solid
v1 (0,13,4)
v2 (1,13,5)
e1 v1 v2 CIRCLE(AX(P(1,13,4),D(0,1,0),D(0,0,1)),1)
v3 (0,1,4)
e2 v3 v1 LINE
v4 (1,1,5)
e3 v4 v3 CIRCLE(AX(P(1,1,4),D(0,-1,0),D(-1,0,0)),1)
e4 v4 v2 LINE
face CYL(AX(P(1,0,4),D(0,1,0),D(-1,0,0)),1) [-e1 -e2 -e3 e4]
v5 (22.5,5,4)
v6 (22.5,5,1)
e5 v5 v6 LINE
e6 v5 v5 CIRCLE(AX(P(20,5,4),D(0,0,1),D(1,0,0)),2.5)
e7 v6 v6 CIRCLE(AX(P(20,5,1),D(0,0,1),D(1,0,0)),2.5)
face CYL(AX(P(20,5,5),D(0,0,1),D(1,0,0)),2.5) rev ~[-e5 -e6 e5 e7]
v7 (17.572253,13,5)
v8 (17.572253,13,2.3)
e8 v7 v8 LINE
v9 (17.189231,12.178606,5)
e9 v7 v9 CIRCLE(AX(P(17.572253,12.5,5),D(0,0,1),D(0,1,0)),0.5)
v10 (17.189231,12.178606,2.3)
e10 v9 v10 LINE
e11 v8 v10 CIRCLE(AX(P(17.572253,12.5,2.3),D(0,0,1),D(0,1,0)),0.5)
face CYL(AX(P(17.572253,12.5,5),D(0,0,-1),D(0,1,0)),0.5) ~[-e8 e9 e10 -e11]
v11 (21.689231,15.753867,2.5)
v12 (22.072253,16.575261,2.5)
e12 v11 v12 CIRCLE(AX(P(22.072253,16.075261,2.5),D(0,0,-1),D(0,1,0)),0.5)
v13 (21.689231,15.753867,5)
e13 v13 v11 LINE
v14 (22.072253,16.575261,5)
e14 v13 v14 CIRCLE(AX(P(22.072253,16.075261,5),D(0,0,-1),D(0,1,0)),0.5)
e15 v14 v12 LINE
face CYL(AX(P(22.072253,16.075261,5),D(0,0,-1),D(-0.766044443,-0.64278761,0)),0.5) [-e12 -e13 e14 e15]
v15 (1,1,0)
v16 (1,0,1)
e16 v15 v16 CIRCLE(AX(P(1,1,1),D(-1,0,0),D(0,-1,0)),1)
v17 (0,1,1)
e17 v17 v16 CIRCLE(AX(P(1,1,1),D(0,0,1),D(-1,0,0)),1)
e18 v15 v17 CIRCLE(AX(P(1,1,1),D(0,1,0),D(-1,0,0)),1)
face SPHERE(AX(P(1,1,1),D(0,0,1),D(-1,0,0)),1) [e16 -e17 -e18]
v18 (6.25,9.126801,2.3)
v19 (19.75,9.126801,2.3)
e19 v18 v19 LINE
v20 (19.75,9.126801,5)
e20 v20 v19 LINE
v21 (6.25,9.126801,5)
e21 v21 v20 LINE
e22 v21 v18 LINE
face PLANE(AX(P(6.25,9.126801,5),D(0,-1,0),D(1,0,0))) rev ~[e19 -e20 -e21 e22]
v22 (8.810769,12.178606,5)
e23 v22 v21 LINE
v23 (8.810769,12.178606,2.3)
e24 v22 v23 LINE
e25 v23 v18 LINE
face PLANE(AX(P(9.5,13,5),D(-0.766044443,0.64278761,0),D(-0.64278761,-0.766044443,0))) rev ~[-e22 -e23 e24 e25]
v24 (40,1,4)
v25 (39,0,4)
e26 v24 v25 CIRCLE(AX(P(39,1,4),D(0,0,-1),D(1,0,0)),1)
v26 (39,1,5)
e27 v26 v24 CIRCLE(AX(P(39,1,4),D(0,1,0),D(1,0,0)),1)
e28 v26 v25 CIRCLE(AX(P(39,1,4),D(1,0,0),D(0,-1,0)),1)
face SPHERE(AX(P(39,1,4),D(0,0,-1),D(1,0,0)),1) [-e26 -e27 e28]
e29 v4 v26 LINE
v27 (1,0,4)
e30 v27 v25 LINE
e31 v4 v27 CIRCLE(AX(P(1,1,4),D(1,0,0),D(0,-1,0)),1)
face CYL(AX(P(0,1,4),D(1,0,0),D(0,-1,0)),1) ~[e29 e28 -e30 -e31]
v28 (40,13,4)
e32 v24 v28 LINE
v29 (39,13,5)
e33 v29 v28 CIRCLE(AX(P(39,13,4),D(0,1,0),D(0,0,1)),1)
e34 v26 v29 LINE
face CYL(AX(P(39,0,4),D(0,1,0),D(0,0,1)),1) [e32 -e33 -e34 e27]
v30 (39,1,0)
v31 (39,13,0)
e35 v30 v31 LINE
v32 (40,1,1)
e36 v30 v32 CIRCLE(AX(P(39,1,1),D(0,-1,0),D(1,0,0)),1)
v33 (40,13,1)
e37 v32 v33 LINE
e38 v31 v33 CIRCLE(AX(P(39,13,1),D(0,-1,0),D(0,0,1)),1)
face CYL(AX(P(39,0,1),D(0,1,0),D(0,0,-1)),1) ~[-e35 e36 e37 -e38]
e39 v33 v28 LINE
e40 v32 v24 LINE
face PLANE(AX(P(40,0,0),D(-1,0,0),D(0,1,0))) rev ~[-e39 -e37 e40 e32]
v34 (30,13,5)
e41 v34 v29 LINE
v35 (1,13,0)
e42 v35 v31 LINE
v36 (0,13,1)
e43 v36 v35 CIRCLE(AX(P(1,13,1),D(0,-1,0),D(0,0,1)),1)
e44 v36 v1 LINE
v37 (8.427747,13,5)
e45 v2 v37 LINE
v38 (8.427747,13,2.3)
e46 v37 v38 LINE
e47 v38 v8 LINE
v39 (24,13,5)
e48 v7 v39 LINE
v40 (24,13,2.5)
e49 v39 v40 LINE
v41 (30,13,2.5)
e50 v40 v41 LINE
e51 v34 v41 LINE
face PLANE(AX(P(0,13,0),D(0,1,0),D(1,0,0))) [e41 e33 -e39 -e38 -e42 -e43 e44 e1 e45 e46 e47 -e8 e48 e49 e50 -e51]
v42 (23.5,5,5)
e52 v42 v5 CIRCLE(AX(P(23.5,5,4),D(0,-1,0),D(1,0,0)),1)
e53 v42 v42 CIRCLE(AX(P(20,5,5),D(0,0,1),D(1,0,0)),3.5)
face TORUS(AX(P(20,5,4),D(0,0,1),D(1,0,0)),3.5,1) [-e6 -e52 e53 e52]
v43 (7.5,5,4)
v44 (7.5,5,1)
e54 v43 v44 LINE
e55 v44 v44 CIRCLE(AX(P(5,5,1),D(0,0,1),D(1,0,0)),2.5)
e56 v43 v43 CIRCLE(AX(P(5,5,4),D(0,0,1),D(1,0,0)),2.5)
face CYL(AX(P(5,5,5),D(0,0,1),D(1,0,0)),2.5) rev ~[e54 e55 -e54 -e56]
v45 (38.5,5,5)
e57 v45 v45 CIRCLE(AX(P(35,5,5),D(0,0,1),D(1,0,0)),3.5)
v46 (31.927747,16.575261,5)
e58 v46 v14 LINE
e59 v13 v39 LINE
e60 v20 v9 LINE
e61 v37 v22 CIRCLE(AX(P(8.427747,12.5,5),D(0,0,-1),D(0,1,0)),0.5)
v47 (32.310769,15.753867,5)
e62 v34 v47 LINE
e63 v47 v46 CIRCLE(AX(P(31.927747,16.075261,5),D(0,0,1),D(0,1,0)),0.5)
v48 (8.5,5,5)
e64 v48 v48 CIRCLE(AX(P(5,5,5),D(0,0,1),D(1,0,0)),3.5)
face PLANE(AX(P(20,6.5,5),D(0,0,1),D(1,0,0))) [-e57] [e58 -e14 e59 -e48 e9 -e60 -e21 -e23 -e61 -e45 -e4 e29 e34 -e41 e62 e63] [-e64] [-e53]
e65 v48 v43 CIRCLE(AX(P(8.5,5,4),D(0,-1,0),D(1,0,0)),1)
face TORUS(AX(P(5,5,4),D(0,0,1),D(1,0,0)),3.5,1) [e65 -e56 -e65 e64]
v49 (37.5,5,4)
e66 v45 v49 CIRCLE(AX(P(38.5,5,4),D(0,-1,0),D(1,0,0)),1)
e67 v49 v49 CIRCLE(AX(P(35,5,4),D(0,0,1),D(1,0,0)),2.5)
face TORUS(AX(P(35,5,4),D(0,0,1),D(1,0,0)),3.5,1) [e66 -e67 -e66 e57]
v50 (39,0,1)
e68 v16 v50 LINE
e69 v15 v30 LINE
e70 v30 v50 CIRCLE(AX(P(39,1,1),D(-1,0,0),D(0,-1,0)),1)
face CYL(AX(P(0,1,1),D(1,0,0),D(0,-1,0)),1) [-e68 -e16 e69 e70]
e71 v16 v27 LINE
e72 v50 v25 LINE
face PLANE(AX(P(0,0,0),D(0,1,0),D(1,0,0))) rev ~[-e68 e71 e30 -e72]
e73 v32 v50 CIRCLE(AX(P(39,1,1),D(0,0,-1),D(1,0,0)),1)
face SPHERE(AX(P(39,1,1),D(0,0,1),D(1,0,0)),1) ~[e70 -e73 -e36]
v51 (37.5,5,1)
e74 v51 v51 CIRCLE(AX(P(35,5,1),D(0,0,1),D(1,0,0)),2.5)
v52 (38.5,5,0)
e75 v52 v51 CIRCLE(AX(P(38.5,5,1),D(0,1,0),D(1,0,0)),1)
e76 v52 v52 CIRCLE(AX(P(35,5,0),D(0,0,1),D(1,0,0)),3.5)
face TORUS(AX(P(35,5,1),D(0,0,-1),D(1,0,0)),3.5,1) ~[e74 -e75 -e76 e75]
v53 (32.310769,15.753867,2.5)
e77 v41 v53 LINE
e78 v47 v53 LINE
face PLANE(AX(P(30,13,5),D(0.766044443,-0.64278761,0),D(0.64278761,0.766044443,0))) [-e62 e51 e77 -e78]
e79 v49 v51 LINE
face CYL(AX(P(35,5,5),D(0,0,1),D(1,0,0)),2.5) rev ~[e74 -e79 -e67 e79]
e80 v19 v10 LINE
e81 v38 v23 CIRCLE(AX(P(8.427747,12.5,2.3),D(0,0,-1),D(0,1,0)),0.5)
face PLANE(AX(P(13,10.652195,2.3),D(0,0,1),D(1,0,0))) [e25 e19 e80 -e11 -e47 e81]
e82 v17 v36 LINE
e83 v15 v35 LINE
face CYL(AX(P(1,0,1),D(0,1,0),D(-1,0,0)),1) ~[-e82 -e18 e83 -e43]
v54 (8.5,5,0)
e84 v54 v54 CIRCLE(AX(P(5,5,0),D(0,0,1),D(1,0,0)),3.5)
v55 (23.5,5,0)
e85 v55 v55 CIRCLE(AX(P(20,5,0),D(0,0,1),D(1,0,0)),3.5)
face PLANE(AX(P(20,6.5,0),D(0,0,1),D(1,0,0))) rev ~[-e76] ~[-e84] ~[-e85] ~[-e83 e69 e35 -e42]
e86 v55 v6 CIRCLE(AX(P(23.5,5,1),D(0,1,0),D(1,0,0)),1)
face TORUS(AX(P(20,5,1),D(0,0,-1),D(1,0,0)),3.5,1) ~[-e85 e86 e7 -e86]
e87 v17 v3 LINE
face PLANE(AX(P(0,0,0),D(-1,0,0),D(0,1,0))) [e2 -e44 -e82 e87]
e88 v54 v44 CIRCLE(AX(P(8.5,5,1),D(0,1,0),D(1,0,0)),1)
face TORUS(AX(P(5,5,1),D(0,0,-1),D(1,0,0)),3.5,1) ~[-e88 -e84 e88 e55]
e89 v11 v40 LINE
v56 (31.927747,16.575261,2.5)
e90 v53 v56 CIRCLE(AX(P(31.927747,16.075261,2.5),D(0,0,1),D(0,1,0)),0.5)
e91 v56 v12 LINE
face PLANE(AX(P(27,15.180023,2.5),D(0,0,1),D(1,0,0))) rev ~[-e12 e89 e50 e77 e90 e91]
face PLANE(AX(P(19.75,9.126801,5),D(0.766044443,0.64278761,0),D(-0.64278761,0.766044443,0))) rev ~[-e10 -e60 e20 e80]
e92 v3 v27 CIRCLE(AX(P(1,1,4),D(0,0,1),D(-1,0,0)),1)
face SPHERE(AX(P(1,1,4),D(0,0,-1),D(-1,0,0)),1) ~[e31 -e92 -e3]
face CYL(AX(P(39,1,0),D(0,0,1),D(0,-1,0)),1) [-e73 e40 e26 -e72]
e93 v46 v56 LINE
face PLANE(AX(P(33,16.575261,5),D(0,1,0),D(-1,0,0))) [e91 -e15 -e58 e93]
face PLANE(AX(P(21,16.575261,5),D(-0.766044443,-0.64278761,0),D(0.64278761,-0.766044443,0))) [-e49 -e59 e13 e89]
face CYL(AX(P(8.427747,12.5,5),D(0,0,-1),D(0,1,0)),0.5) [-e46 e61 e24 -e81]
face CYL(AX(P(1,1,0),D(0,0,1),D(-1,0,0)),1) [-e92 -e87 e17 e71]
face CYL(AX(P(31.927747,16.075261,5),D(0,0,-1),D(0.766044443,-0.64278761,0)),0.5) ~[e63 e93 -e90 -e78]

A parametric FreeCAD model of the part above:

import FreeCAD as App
import Part
import Sketcher
Q = App.Units.Quantity


def edges_at(feature, points):
    """Names of the edges that pass closest to the given points."""
    edges = feature.Shape.Edges
    near = lambda p: min(range(len(edges)), key=lambda i: edges[i].distToShape(Part.Vertex(*p))[0])
    return sorted({f"Edge{near(p) + 1}" for p in points})

doc = App.newDocument("Part")
body = doc.addObject("PartDesign::Body", "Body")

# Sketch on XY plane
sketch1 = body.newObject("Sketcher::SketchObject", "Sketch")
sketch1.AttachmentSupport = (doc.getObject("XY_Plane"), [""])
sketch1.MapMode = "FlatFace"
sketch1.addGeometry([
    Part.LineSegment(App.Vector(0, 13, 0), App.Vector(0, 0, 0)),
    Part.LineSegment(App.Vector(0, 0, 0), App.Vector(40, 0, 0)),
    Part.LineSegment(App.Vector(40, 0, 0), App.Vector(40, 13, 0)),
    Part.LineSegment(App.Vector(40, 13, 0), App.Vector(0, 13, 0)),
], False)
sketch1.addConstraint([
    Sketcher.Constraint("Coincident", 0, 2, 1, 1),
    Sketcher.Constraint("Coincident", 1, 2, 2, 1),
    Sketcher.Constraint("Coincident", 2, 2, 3, 1),
    Sketcher.Constraint("Coincident", 3, 2, 0, 1),
    Sketcher.Constraint("Vertical", 0),
    Sketcher.Constraint("Horizontal", 1),
    Sketcher.Constraint("Vertical", 2),
    Sketcher.Constraint("Horizontal", 3),
    Sketcher.Constraint("Coincident", 0, 2, -1, 1),
    Sketcher.Constraint("DistanceX", 1, 1, 1, 2, Q("40 mm")),
    Sketcher.Constraint("DistanceY", 0, 2, 0, 1, Q("13 mm")),
])
pad1 = body.newObject("PartDesign::Pad", "Pad")
pad1.Profile = sketch1
pad1.Length = 5

# Sketch on XY plane
sketch2 = body.newObject("Sketcher::SketchObject", "Sketch001")
sketch2.AttachmentSupport = (doc.getObject("XY_Plane"), [""])
sketch2.MapMode = "FlatFace"
sketch2.AttachmentOffset = App.Placement(App.Vector(0, 0, 5), App.Rotation())
sketch2.addGeometry([
    Part.Circle(App.Vector(5, 5, 0), App.Vector(0, 0, 1), 2.5),
    Part.Circle(App.Vector(20, 5, 0), App.Vector(0, 0, 1), 2.5),
    Part.Circle(App.Vector(35, 5, 0), App.Vector(0, 0, 1), 2.5),
], False)
sketch2.addConstraint([
    Sketcher.Constraint("Equal", 0, 1),
    Sketcher.Constraint("Equal", 1, 2),
    Sketcher.Constraint("Horizontal", 0, 3, 1, 3),
    Sketcher.Constraint("Horizontal", 1, 3, 2, 3),
    Sketcher.Constraint("Diameter", 0, Q("5 mm")),
    Sketcher.Constraint("DistanceX", -1, 1, 0, 3, Q("5 mm")),
    Sketcher.Constraint("DistanceY", -1, 1, 0, 3, Q("5 mm")),
    Sketcher.Constraint("DistanceX", -1, 1, 1, 3, Q("20 mm")),
    Sketcher.Constraint("DistanceX", -1, 1, 2, 3, Q("35 mm")),
])
pocket1 = body.newObject("PartDesign::Pocket", "Pocket")
pocket1.Profile = sketch2
pocket1.Type = "ThroughAll"

# Sketch on XY plane
sketch3 = body.newObject("Sketcher::SketchObject", "Sketch002")
sketch3.AttachmentSupport = (doc.getObject("XY_Plane"), [""])
sketch3.MapMode = "FlatFace"
sketch3.AttachmentOffset = App.Placement(App.Vector(0, 0, 5), App.Rotation())
sketch3.addGeometry([
    Part.LineSegment(App.Vector(21, 16.575261, 0), App.Vector(24, 13, 0)),
    Part.LineSegment(App.Vector(24, 13, 0), App.Vector(30, 13, 0)),
    Part.LineSegment(App.Vector(30, 13, 0), App.Vector(33, 16.575261, 0)),
    Part.LineSegment(App.Vector(33, 16.575261, 0), App.Vector(21, 16.575261, 0)),
], False)
sketch3.addConstraint([
    Sketcher.Constraint("Coincident", 0, 2, 1, 1),
    Sketcher.Constraint("Coincident", 1, 2, 2, 1),
    Sketcher.Constraint("Coincident", 2, 2, 3, 1),
    Sketcher.Constraint("Coincident", 3, 2, 0, 1),
    Sketcher.Constraint("Horizontal", 1),
    Sketcher.Constraint("Horizontal", 3),
    Sketcher.Constraint("Equal", 0, 2),
    Sketcher.Constraint("DistanceX", 1, 1, 1, 2, Q("6 mm")),
    Sketcher.Constraint("DistanceX", 3, 2, 3, 1, Q("12 mm")),
    Sketcher.Constraint("Angle", 0, Q("-50 deg")),
    Sketcher.Constraint("DistanceX", -1, 1, 0, 2, Q("24 mm")),
    Sketcher.Constraint("DistanceY", -1, 1, 0, 2, Q("13 mm")),
])
pad2 = body.newObject("PartDesign::Pad", "Pad001")
pad2.Profile = sketch3
pad2.Length = 2.5
pad2.Reversed = True

# Sketch on XY plane
sketch4 = body.newObject("Sketcher::SketchObject", "Sketch003")
sketch4.AttachmentSupport = (doc.getObject("XY_Plane"), [""])
sketch4.MapMode = "FlatFace"
sketch4.AttachmentOffset = App.Placement(App.Vector(0, 0, 5), App.Rotation())
sketch4.addGeometry([
    Part.LineSegment(App.Vector(16.5, 13, 0), App.Vector(9.5, 13, 0)),
    Part.LineSegment(App.Vector(9.5, 13, 0), App.Vector(6.25, 9.126801, 0)),
    Part.LineSegment(App.Vector(6.25, 9.126801, 0), App.Vector(19.75, 9.126801, 0)),
    Part.LineSegment(App.Vector(19.75, 9.126801, 0), App.Vector(16.5, 13, 0)),
], False)
sketch4.addConstraint([
    Sketcher.Constraint("Coincident", 0, 2, 1, 1),
    Sketcher.Constraint("Coincident", 1, 2, 2, 1),
    Sketcher.Constraint("Coincident", 2, 2, 3, 1),
    Sketcher.Constraint("Coincident", 3, 2, 0, 1),
    Sketcher.Constraint("Horizontal", 0),
    Sketcher.Constraint("Horizontal", 2),
    Sketcher.Constraint("Equal", 1, 3),
    Sketcher.Constraint("DistanceX", 0, 2, 0, 1, Q("7 mm")),
    Sketcher.Constraint("Angle", 1, Q("-130 deg")),
    Sketcher.Constraint("DistanceX", 2, 1, 2, 2, Q("13.5 mm")),
    Sketcher.Constraint("DistanceY", -1, 1, 0, 2, Q("13 mm")),
    Sketcher.Constraint("DistanceX", -1, 1, 0, 2, Q("9.5 mm")),
])
pocket2 = body.newObject("PartDesign::Pocket", "Pocket001")
pocket2.Profile = sketch4
pocket2.Length = 2.7
doc.recompute()

fillet = body.newObject("PartDesign::Fillet", "Fillet")
fillet.Base = (pocket2, edges_at(pocket2, [
    (0, 0, 2.5),
    (40, 0, 2.5),
    (0, 6.5, 5),
    (0, 6.5, 0),
    (40, 6.5, 5),
    (40, 6.5, 0),
    (20, 0, 5),
    (20, 0, 0),
]))
fillet.Radius = 1
doc.recompute()

fillet2 = body.newObject("PartDesign::Fillet", "Fillet001")
fillet2.Base = (fillet, edges_at(fillet, [
    (2.5, 5, 5),
    (17.5, 5, 5),
    (32.5, 5, 5),
    (2.5, 5, 0),
    (17.5, 5, 0),
    (32.5, 5, 0),
]))
fillet2.Radius = 1
doc.recompute()

fillet3 = body.newObject("PartDesign::Fillet", "Fillet002")
fillet3.Base = (fillet2, edges_at(fillet2, [
    (21, 16.575, 3.75),
    (33, 16.575, 3.75),
    (9.5, 13, 3.65),
    (16.5, 13, 3.65),
]))
fillet3.Radius = 0.5

doc.recompute()
